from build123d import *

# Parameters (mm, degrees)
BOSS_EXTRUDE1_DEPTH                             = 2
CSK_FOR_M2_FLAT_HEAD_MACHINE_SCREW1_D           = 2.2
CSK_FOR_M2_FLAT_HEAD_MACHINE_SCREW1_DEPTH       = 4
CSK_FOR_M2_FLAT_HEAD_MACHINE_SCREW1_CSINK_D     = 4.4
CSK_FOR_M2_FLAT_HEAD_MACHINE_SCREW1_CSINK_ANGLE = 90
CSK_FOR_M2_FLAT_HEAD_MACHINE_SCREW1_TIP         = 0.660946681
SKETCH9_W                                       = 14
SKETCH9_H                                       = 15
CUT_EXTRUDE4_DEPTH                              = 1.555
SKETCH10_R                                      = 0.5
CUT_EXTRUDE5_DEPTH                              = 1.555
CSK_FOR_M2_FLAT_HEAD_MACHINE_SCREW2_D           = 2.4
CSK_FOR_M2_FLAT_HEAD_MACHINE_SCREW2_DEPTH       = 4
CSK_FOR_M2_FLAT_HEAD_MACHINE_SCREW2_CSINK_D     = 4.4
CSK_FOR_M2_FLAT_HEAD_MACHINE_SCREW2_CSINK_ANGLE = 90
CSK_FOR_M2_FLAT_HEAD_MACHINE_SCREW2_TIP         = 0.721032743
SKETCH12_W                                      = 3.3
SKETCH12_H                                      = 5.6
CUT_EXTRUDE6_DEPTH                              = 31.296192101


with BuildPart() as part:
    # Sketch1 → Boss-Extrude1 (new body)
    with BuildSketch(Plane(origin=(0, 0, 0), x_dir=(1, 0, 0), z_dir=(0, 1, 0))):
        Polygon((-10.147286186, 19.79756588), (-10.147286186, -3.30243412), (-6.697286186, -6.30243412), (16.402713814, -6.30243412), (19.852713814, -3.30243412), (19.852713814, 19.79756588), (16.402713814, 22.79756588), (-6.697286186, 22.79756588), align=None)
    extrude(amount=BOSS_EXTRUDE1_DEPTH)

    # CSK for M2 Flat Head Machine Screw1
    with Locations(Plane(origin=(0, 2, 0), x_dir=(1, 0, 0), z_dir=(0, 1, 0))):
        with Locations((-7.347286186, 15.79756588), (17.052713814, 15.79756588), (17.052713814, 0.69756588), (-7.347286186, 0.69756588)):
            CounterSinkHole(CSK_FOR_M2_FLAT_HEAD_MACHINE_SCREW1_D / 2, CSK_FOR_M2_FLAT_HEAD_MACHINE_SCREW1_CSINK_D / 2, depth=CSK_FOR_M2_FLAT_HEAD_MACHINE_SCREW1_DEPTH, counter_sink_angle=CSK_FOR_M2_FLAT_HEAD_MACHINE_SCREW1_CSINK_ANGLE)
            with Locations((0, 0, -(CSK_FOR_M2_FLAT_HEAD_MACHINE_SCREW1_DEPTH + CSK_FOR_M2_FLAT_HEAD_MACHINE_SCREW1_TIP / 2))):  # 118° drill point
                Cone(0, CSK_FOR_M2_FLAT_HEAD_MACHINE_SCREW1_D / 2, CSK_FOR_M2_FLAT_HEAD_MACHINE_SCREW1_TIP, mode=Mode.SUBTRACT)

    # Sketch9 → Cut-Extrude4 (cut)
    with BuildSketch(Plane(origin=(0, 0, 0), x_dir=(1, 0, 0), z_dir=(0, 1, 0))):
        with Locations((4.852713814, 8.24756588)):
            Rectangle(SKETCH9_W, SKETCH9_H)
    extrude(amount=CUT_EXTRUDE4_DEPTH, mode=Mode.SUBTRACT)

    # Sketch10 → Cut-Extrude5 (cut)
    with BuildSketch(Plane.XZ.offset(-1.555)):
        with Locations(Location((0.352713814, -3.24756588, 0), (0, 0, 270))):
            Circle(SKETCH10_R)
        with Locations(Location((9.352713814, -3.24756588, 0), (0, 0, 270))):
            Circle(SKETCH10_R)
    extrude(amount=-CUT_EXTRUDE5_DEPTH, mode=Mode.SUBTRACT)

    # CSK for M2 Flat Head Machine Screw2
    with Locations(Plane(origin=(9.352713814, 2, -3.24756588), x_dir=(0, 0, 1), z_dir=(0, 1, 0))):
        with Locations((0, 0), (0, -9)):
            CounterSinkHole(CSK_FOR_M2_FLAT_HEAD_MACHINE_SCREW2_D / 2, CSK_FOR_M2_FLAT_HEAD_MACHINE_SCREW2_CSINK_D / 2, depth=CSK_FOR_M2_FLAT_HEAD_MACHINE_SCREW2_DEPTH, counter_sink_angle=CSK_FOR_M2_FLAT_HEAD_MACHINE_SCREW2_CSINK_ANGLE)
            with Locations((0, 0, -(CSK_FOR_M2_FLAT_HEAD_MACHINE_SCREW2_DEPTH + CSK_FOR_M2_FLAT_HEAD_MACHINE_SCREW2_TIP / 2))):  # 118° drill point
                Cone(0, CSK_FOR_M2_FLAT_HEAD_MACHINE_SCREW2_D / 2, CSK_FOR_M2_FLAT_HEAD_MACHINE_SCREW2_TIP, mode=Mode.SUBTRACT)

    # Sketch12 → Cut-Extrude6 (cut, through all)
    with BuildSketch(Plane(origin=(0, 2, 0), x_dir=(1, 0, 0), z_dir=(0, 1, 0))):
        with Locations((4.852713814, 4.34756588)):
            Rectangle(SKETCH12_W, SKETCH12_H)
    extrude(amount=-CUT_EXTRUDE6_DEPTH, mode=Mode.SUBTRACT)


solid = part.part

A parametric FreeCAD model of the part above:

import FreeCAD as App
import Part
import Sketcher
from FreeCAD import Vector

doc = App.newDocument("Part")
body = doc.addObject("PartDesign::Body", "Body")

sketch1 = body.newObject("Sketcher::SketchObject", "Sketch")
sketch1.AttachmentSupport = (doc.getObject("XZ_Plane"), [""])
sketch1.MapMode = "FlatFace"
sketch1.addGeometry(Part.LineSegment(Vector(-10.1, -19.8, 0), Vector(-10.1, 3.3, 0)), False)
sketch1.addGeometry(Part.LineSegment(Vector(-10.1, 3.3, 0), Vector(-6.7, 6.3, 0)), False)
sketch1.addGeometry(Part.LineSegment(Vector(-6.7, 6.3, 0), Vector(16.4, 6.3, 0)), False)
sketch1.addGeometry(Part.LineSegment(Vector(16.4, 6.3, 0), Vector(19.9, 3.3, 0)), False)
sketch1.addGeometry(Part.LineSegment(Vector(19.9, 3.3, 0), Vector(19.9, -19.8, 0)), False)
sketch1.addGeometry(Part.LineSegment(Vector(19.9, -19.8, 0), Vector(16.4, -22.8, 0)), False)
sketch1.addGeometry(Part.LineSegment(Vector(16.4, -22.8, 0), Vector(-6.7, -22.8, 0)), False)
sketch1.addGeometry(Part.LineSegment(Vector(-6.7, -22.8, 0), Vector(-10.1, -19.8, 0)), False)
sketch1.addConstraint(Sketcher.Constraint("Coincident", 0, 2, 1, 1))
sketch1.addConstraint(Sketcher.Constraint("Coincident", 1, 2, 2, 1))
sketch1.addConstraint(Sketcher.Constraint("Coincident", 2, 2, 3, 1))
sketch1.addConstraint(Sketcher.Constraint("Coincident", 3, 2, 4, 1))
sketch1.addConstraint(Sketcher.Constraint("Coincident", 4, 2, 5, 1))
sketch1.addConstraint(Sketcher.Constraint("Coincident", 5, 2, 6, 1))
sketch1.addConstraint(Sketcher.Constraint("Coincident", 6, 2, 7, 1))
sketch1.addConstraint(Sketcher.Constraint("Coincident", 7, 2, 0, 1))
sketch1.addConstraint(Sketcher.Constraint("Vertical", 0))
sketch1.addConstraint(Sketcher.Constraint("Horizontal", 2))
sketch1.addConstraint(Sketcher.Constraint("Vertical", 4))
sketch1.addConstraint(Sketcher.Constraint("Horizontal", 6))
sketch1.addConstraint(Sketcher.Constraint("Parallel", 1, 5))
sketch1.addConstraint(Sketcher.Constraint("Parallel", 3, 7))
sketch1.addConstraint(Sketcher.Constraint("Horizontal", 0, 2, 3, 2))
sketch1.addConstraint(Sketcher.Constraint("Horizontal", 4, 2, 7, 2))
sketch1.addConstraint(Sketcher.Constraint("Vertical", 2, 2, 5, 2))
sketch1.addConstraint(Sketcher.Constraint("Vertical", 1, 2, 6, 2))
sketch1.addConstraint(Sketcher.Constraint("Equal", 6, 0))
sketch1.addConstraint(Sketcher.Constraint("DistanceX", 2, 1, 2, 2, 23.1))
sketch1.addConstraint(Sketcher.Constraint("DistanceY", 0, 2, 1, 2, 3.0))
sketch1.addConstraint(Sketcher.Constraint("DistanceX", 0, 2, 3, 2, 30.0))
sketch1.addConstraint(Sketcher.Constraint("DistanceX", 0, 2, -1, 1, 10.147286))
sketch1.addConstraint(Sketcher.Constraint("DistanceY", -1, 1, 0, 2, 3.302434))
pad1 = body.newObject("PartDesign::Pad", "Pad")
pad1.Profile = sketch1
pad1.Length = 2
pad1.Reversed = True

sketch2 = body.newObject("Sketcher::SketchObject", "Sketch001")
sketch2.AttachmentSupport = (doc.getObject("XZ_Plane"), [""])
sketch2.MapMode = "FlatFace"
sketch2.AttachmentOffset = App.Placement(Vector(0, 0, -2), App.Rotation())
sketch2.addGeometry(Part.Circle(Vector(-7.3, -15.8, 0), Vector(0, 0, 1), 1.1), False)
sketch2.addGeometry(Part.Circle(Vector(17.1, -15.8, 0), Vector(0, 0, 1), 1.1), False)
sketch2.addGeometry(Part.Circle(Vector(17.1, -0.7, 0), Vector(0, 0, 1), 1.1), False)
sketch2.addGeometry(Part.Circle(Vector(-7.3, -0.7, 0), Vector(0, 0, 1), 1.1), False)
sketch2.addConstraint(Sketcher.Constraint("Equal", 0, 1))
sketch2.addConstraint(Sketcher.Constraint("Equal", 1, 2))
sketch2.addConstraint(Sketcher.Constraint("Equal", 2, 3))
sketch2.addConstraint(Sketcher.Constraint("Horizontal", 0, 3, 1, 3))
sketch2.addConstraint(Sketcher.Constraint("Horizontal", 2, 3, 3, 3))
sketch2.addConstraint(Sketcher.Constraint("Vertical", 1, 3, 2, 3))
sketch2.addConstraint(Sketcher.Constraint("Vertical", 0, 3, 3, 3))
sketch2.addConstraint(Sketcher.Constraint("Diameter", 0, 2.2))
sketch2.addConstraint(Sketcher.Constraint("DistanceX", 0, 3, 1, 3, 24.4))
sketch2.addConstraint(Sketcher.Constraint("DistanceY", 1, 3, 2, 3, 15.1))
sketch2.addConstraint(Sketcher.Constraint("DistanceX", 0, 3, -1, 1, 7.347286))
sketch2.addConstraint(Sketcher.Constraint("DistanceY", 0, 3, -1, 1, 15.797566))
doc.recompute()
hole = body.newObject("PartDesign::Hole", "Hole")
hole.Profile = sketch2
hole.ThreadType = "None"
hole.Diameter = 2.2
hole.DepthType = "Dimension"
hole.Depth = 4
hole.DrillPoint = "Angled"
hole.DrillPointAngle = 118
hole.HoleCutType = "Countersink"
hole.HoleCutDiameter = 4.4
hole.HoleCutCountersinkAngle = 90
hole.Reversed = True

sketch3 = body.newObject("Sketcher::SketchObject", "Sketch002")
sketch3.AttachmentSupport = (doc.getObject("XZ_Plane"), [""])
sketch3.MapMode = "FlatFace"
sketch3.addGeometry(Part.LineSegment(Vector(-2, -16, 0), Vector(-2, -1, 0)), False)
sketch3.addGeometry(Part.LineSegment(Vector(-2, -1, 0), Vector(12, -1, 0)), False)
sketch3.addGeometry(Part.LineSegment(Vector(12, -1, 0), Vector(12, -16, 0)), False)
sketch3.addGeometry(Part.LineSegment(Vector(12, -16, 0), Vector(-2, -16, 0)), False)
sketch3.addConstraint(Sketcher.Constraint("Coincident", 0, 2, 1, 1))
sketch3.addConstraint(Sketcher.Constraint("Coincident", 1, 2, 2, 1))
sketch3.addConstraint(Sketcher.Constraint("Coincident", 2, 2, 3, 1))
sketch3.addConstraint(Sketcher.Constraint("Coincident", 3, 2, 0, 1))
sketch3.addConstraint(Sketcher.Constraint("Vertical", 0))
sketch3.addConstraint(Sketcher.Constraint("Horizontal", 1))
sketch3.addConstraint(Sketcher.Constraint("Vertical", 2))
sketch3.addConstraint(Sketcher.Constraint("Horizontal", 3))
sketch3.addConstraint(Sketcher.Constraint("DistanceX", 1, 1, 1, 2, 14.0))
sketch3.addConstraint(Sketcher.Constraint("DistanceY", 0, 1, 0, 2, 15.0))
sketch3.addConstraint(Sketcher.Constraint("DistanceX", 0, 2, -1, 1, 2.147286))
sketch3.addConstraint(Sketcher.Constraint("DistanceY", 0, 2, -1, 1, 0.747566))
pocket1 = body.newObject("PartDesign::Pocket", "Pocket")
pocket1.Profile = sketch3
pocket1.Length = 1.555

sketch4 = body.newObject("Sketcher::SketchObject", "Sketch003")
sketch4.AttachmentSupport = (doc.getObject("XZ_Plane"), [""])
sketch4.MapMode = "FlatFace"
sketch4.AttachmentOffset = App.Placement(Vector(0, 0, -1.555), App.Rotation())
sketch4.addGeometry(Part.Circle(Vector(0.4, -3.2, 0), Vector(0, 0, 1), 0.5), False)
sketch4.addGeometry(Part.Circle(Vector(9.4, -3.2, 0), Vector(0, 0, 1), 0.5), False)
sketch4.addConstraint(Sketcher.Constraint("Equal", 0, 1))
sketch4.addConstraint(Sketcher.Constraint("Horizontal", 0, 3, 1, 3))
sketch4.addConstraint(Sketcher.Constraint("Diameter", 0, 1.0))
sketch4.addConstraint(Sketcher.Constraint("DistanceX", 0, 3, 1, 3, 9.0))
sketch4.addConstraint(Sketcher.Constraint("DistanceX", -1, 1, 0, 3, 0.352714))
sketch4.addConstraint(Sketcher.Constraint("DistanceY", 0, 3, -1, 1, 3.247566))
pocket2 = body.newObject("PartDesign::Pocket", "Pocket001")
pocket2.Profile = sketch4
pocket2.Length = 1.555

sketch5 = body.newObject("Sketcher::SketchObject", "Sketch004")
sketch5.AttachmentSupport = (doc.getObject("XZ_Plane"), [""])
sketch5.MapMode = "FlatFace"
sketch5.AttachmentOffset = App.Placement(Vector(0, 0, -2), App.Rotation())
sketch5.addGeometry(Part.Circle(Vector(9.4, -3.2, 0), Vector(0, 0, 1), 1.2), False)
sketch5.addGeometry(Part.Circle(Vector(0.4, -3.2, 0), Vector(0, 0, 1), 1.2), False)
sketch5.addConstraint(Sketcher.Constraint("Equal", 0, 1))
sketch5.addConstraint(Sketcher.Constraint("Horizontal", 0, 3, 1, 3))
sketch5.addConstraint(Sketcher.Constraint("Diameter", 0, 2.4))
sketch5.addConstraint(Sketcher.Constraint("DistanceX", 1, 3, 0, 3, 9.0))
sketch5.addConstraint(Sketcher.Constraint("DistanceX", -1, 1, 0, 3, 9.352714))
sketch5.addConstraint(Sketcher.Constraint("DistanceY", 0, 3, -1, 1, 3.247566))
doc.recompute()
hole2 = body.newObject("PartDesign::Hole", "Hole001")
hole2.Profile = sketch5
hole2.ThreadType = "None"
hole2.Diameter = 2.4
hole2.DepthType = "Dimension"
hole2.Depth = 4
hole2.DrillPoint = "Angled"
hole2.DrillPointAngle = 118
hole2.HoleCutType = "Countersink"
hole2.HoleCutDiameter = 4.4
hole2.HoleCutCountersinkAngle = 90
hole2.Reversed = True

sketch6 = body.newObject("Sketcher::SketchObject", "Sketch005")
sketch6.AttachmentSupport = (doc.getObject("XZ_Plane"), [""])
sketch6.MapMode = "FlatFace"
sketch6.AttachmentOffset = App.Placement(Vector(0, 0, -2), App.Rotation())
sketch6.addGeometry(Part.LineSegment(Vector(3.2, -7.1, 0), Vector(3.2, -1.5, 0)), False)
sketch6.addGeometry(Part.LineSegment(Vector(3.2, -1.5, 0), Vector(6.5, -1.5, 0)), False)
sketch6.addGeometry(Part.LineSegment(Vector(6.5, -1.5, 0), Vector(6.5, -7.1, 0)), False)
sketch6.addGeometry(Part.LineSegment(Vector(6.5, -7.1, 0), Vector(3.2, -7.1, 0)), False)
sketch6.addConstraint(Sketcher.Constraint("Coincident", 0, 2, 1, 1))
sketch6.addConstraint(Sketcher.Constraint("Coincident", 1, 2, 2, 1))
sketch6.addConstraint(Sketcher.Constraint("Coincident", 2, 2, 3, 1))
sketch6.addConstraint(Sketcher.Constraint("Coincident", 3, 2, 0, 1))
sketch6.addConstraint(Sketcher.Constraint("Vertical", 0))
sketch6.addConstraint(Sketcher.Constraint("Horizontal", 1))
sketch6.addConstraint(Sketcher.Constraint("Vertical", 2))
sketch6.addConstraint(Sketcher.Constraint("Horizontal", 3))
sketch6.addConstraint(Sketcher.Constraint("DistanceX", 1, 1, 1, 2, 3.3))
sketch6.addConstraint(Sketcher.Constraint("DistanceY", 0, 1, 0, 2, 5.6))
sketch6.addConstraint(Sketcher.Constraint("DistanceX", -1, 1, 0, 2, 3.202714))
sketch6.addConstraint(Sketcher.Constraint("DistanceY", 0, 2, -1, 1, 1.547566))
pocket3 = body.newObject("PartDesign::Pocket", "Pocket002")
pocket3.Profile = sketch6
pocket3.Type = "ThroughAll"
pocket3.Reversed = True

doc.recompute()
